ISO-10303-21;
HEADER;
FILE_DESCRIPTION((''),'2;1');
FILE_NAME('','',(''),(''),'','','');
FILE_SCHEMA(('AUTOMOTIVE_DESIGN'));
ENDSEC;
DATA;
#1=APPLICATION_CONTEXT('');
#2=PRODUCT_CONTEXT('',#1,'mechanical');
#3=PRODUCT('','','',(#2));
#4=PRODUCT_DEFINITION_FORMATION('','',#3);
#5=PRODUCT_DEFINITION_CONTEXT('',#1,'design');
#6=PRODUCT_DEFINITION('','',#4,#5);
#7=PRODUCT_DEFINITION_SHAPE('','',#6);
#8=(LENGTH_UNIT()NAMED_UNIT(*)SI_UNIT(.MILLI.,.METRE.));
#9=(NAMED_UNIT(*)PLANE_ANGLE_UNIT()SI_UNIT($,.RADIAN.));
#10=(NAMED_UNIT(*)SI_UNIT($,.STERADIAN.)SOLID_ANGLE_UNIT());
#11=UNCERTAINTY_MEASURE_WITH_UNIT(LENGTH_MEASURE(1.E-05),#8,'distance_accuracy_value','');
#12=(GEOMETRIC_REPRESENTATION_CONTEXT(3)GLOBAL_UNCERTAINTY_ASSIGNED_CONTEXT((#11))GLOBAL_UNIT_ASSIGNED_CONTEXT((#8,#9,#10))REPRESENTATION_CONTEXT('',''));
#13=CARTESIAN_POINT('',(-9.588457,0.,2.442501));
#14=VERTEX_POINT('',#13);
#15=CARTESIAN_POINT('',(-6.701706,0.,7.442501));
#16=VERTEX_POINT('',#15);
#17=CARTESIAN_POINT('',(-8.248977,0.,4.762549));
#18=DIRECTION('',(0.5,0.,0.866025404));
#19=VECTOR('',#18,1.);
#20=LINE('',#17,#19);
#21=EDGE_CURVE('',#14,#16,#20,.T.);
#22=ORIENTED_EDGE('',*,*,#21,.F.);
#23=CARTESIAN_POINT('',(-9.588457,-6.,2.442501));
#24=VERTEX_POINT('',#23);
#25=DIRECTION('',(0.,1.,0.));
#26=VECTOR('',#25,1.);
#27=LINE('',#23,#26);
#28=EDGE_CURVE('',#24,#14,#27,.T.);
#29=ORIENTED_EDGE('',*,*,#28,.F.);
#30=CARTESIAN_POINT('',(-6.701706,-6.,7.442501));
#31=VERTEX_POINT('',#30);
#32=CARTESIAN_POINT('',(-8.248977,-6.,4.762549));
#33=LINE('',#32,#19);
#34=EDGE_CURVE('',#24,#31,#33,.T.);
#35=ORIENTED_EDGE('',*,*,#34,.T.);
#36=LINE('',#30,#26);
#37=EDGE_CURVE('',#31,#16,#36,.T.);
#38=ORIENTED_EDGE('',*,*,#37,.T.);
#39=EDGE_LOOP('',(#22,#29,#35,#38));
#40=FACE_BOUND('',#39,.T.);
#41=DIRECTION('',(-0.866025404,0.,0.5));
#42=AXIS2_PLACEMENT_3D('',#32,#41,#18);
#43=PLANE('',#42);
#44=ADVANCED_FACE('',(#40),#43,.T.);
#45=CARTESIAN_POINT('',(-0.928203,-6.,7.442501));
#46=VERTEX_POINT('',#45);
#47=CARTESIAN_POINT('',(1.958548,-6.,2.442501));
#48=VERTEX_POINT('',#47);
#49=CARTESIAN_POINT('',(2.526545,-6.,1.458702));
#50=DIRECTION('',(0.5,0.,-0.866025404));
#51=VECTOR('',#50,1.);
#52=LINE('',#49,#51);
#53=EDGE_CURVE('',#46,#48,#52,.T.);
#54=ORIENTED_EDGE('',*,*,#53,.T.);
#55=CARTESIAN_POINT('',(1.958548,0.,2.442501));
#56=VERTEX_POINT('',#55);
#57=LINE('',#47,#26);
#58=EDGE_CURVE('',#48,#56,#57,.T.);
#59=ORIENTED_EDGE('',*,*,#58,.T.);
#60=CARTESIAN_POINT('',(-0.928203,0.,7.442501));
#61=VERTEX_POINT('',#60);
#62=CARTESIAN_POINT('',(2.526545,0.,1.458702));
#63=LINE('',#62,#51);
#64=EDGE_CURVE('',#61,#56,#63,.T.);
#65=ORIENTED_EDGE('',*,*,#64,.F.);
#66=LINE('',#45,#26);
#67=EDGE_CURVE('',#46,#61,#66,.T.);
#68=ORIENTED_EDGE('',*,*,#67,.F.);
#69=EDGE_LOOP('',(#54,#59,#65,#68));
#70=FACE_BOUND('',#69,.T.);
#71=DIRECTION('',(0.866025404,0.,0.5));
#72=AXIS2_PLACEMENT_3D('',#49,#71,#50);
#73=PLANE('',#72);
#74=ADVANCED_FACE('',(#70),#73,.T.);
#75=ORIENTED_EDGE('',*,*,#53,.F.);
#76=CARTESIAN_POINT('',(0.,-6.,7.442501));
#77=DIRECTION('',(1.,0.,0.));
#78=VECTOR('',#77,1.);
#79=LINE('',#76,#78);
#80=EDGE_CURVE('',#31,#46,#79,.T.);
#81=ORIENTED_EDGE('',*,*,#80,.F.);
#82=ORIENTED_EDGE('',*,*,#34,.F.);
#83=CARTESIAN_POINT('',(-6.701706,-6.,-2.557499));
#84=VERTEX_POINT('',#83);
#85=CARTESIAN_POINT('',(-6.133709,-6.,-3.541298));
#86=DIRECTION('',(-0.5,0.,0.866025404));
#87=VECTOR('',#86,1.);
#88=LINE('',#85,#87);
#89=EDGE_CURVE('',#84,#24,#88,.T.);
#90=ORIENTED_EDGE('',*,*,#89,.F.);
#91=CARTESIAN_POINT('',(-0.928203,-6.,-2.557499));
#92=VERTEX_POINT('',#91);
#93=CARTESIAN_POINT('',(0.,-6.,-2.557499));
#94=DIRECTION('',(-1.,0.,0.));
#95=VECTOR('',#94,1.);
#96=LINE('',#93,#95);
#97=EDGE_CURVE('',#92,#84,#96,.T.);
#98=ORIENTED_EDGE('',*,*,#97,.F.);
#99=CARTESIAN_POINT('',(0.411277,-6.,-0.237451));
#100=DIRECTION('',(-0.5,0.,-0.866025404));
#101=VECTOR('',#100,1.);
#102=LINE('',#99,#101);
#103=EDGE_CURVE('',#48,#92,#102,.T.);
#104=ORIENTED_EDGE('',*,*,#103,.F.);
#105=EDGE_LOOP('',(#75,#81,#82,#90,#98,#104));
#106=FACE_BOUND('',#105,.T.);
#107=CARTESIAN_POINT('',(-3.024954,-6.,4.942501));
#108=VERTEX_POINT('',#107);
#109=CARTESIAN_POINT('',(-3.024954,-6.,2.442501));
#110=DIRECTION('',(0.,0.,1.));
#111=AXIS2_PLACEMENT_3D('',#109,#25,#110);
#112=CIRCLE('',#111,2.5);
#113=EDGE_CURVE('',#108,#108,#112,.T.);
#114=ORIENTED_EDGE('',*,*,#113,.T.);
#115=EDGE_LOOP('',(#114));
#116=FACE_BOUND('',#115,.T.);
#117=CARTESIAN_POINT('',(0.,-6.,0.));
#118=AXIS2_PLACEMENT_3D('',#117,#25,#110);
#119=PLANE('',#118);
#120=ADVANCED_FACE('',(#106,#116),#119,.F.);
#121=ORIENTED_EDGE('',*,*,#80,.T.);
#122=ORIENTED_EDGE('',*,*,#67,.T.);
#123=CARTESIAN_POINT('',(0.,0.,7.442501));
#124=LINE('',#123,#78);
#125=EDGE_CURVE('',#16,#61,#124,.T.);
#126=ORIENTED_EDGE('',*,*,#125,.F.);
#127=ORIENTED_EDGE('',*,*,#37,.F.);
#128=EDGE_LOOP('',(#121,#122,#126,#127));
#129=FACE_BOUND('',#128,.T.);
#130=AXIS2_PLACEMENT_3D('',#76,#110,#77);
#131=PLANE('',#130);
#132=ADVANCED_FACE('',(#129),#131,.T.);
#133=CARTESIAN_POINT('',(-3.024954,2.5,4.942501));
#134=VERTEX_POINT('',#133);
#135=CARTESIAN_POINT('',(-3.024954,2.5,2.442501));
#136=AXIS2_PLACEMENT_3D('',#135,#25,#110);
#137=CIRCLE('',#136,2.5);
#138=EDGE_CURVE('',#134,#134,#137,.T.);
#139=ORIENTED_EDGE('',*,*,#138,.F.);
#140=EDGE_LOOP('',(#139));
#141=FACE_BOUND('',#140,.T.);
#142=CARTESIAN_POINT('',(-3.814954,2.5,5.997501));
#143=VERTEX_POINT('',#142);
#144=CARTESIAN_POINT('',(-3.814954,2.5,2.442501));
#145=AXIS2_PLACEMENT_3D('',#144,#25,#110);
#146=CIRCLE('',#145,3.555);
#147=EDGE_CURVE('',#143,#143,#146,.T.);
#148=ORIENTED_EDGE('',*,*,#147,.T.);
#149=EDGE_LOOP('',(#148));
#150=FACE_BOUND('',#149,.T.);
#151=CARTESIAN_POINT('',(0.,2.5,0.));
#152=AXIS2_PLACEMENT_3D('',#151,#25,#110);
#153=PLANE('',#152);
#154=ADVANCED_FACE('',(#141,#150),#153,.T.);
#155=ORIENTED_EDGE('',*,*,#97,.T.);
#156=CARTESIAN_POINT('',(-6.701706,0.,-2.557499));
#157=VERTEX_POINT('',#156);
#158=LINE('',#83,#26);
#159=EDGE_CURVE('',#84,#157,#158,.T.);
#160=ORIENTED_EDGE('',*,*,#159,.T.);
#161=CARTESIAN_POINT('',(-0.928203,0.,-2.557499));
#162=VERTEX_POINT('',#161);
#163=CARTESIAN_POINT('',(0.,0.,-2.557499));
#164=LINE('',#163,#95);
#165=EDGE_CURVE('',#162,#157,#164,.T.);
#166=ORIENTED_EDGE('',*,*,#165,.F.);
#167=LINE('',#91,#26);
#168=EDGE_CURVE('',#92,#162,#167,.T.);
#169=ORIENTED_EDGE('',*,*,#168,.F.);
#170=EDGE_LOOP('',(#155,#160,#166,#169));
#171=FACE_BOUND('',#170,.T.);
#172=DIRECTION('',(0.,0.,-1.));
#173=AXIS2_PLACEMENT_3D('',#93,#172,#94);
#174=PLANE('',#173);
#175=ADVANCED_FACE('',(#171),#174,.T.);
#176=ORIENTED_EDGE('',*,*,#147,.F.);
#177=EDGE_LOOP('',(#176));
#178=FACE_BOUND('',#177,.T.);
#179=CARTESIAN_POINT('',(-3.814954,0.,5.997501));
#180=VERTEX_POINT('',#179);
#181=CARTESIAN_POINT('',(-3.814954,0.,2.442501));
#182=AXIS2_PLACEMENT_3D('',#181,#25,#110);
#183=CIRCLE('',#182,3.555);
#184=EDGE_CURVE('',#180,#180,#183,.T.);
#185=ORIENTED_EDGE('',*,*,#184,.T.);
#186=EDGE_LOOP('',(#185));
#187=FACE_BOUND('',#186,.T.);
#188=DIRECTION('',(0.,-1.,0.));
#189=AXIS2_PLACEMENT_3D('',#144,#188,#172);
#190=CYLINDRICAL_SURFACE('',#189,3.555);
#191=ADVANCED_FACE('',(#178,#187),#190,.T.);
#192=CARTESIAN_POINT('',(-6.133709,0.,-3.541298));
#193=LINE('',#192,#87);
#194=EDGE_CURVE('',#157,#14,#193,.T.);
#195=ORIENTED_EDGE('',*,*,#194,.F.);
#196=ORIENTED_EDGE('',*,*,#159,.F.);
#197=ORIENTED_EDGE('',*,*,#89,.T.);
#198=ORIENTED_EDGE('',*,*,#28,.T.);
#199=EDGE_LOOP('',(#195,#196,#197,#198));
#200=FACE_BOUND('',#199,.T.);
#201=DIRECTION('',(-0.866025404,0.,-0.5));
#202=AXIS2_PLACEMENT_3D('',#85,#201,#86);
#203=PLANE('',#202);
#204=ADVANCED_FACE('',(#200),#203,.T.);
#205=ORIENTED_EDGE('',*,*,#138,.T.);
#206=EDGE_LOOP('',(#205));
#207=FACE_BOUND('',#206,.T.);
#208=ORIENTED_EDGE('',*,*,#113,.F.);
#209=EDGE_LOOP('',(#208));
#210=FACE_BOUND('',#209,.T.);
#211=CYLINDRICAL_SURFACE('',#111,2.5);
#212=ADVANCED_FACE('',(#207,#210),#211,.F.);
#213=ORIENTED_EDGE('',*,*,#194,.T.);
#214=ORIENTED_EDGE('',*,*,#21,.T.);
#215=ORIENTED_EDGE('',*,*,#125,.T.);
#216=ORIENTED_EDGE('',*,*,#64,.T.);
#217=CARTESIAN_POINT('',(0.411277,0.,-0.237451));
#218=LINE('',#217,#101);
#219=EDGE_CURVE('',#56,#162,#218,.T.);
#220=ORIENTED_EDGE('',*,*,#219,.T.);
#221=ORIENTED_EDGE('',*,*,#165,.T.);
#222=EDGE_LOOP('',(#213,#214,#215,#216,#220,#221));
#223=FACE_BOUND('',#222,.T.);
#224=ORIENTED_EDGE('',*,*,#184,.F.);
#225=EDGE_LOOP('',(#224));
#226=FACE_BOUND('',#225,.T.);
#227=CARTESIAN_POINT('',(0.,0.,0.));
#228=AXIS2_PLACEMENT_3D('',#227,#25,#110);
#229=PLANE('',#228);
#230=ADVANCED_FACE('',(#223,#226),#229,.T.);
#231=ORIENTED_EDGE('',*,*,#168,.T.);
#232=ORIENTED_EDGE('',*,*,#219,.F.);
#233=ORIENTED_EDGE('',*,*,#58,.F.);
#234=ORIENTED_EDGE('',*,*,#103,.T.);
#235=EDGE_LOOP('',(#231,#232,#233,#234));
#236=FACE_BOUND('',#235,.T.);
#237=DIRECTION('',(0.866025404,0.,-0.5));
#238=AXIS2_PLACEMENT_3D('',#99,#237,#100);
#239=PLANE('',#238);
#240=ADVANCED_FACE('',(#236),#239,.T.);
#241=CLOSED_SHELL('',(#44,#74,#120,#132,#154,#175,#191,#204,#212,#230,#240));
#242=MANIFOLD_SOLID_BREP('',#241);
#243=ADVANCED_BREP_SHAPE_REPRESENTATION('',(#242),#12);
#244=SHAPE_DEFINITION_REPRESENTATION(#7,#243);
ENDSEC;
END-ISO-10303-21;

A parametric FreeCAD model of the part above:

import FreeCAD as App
import Part
import Sketcher

V = App.Vector
Q = App.Units.Quantity


def add_polygon(sketch, points):
    """Adds a closed chain of lines whose ends are joined by coincident constraints."""
    first, n = sketch.GeometryCount, len(points)
    for a, b in zip(points, points[1:] + points[:1]):
        sketch.addGeometry(Part.LineSegment(App.Vector(*a, 0), App.Vector(*b, 0)), False)
    for i in range(n):
        sketch.addConstraint(Sketcher.Constraint("Coincident", first + i, 2, first + (i + 1) % n, 1))

doc = App.newDocument("Part")
body = doc.addObject("PartDesign::Body", "Body")

# Sketch on XZ plane
sketch1 = body.newObject("Sketcher::SketchObject", "Sketch")
sketch1.AttachmentSupport = (doc.getObject("XZ_Plane"), [""])
sketch1.MapMode = "FlatFace"
add_polygon(sketch1, [(-0.9, 7.4), (2, 2.4), (-0.9, -2.6), (-6.7, -2.6), (-9.6, 2.4), (-6.7, 7.4)])  # lines 0-5
sketch1.addGeometry(Part.Circle(V(-3, 2.4, 0), V(0, 0, 1), 2.5), False)  # 6
sketch1.addConstraint(Sketcher.Constraint("Horizontal", 2))
sketch1.addConstraint(Sketcher.Constraint("Horizontal", 5))
sketch1.addConstraint(Sketcher.Constraint("Parallel", 0, 3))
sketch1.addConstraint(Sketcher.Constraint("Parallel", 1, 4))
sketch1.addConstraint(Sketcher.Constraint("Horizontal", 6, 3, 0, 2))
sketch1.addConstraint(Sketcher.Constraint("Horizontal", 0, 2, 3, 2))
sketch1.addConstraint(Sketcher.Constraint("Vertical", 2, 2, 4, 2))
sketch1.addConstraint(Sketcher.Constraint("Vertical", 1, 2, 5, 2))
sketch1.addConstraint(Sketcher.Constraint("Diameter", 6, Q("5 mm")))
sketch1.addConstraint(Sketcher.Constraint("Angle", 0, Q("-60 deg")))
sketch1.addConstraint(Sketcher.Constraint("DistanceY", 1, 2, 6, 3, Q("5 mm")))
sketch1.addConstraint(Sketcher.Constraint("DistanceY", -1, 1, 6, 3, Q("2.442501 mm")))
sketch1.addConstraint(Sketcher.Constraint("DistanceX", 2, 2, 2, 1, Q("5.773503 mm")))
sketch1.addConstraint(Sketcher.Constraint("DistanceX", -1, 1, 0, 2, Q("1.958548 mm")))
sketch1.addConstraint(Sketcher.Constraint("DistanceX", 6, 3, 1, 2, Q("2.096751 mm")))
pad1 = body.newObject("PartDesign::Pad", "Pad")
pad1.Profile = sketch1
pad1.Length = 6

# Sketch on XZ plane
sketch2 = body.newObject("Sketcher::SketchObject", "Sketch001")
sketch2.AttachmentSupport = (doc.getObject("XZ_Plane"), [""])
sketch2.MapMode = "FlatFace"
sketch2.AttachmentOffset = App.Placement(V(0, 0, -2.5), App.Rotation())
sketch2.addGeometry(Part.Circle(V(-3.8, 2.4, 0), V(0, 0, 1), 3.6), False)
sketch2.addGeometry(Part.Circle(V(-3, 2.4, 0), V(0, 0, 1), 2.5), False)
sketch2.addConstraint(Sketcher.Constraint("Horizontal", 0, 3, 1, 3))
sketch2.addConstraint(Sketcher.Constraint("Diameter", 1, Q("5 mm")))
sketch2.addConstraint(Sketcher.Constraint("Diameter", 0, Q("7.11 mm")))
sketch2.addConstraint(Sketcher.Constraint("DistanceX", 0, 3, 1, 3, Q("0.79 mm")))
sketch2.addConstraint(Sketcher.Constraint("DistanceY", -1, 1, 0, 3, Q("2.442501 mm")))
sketch2.addConstraint(Sketcher.Constraint("DistanceX", 0, 3, -1, 1, Q("3.814954 mm")))
pad2 = body.newObject("PartDesign::Pad", "Pad001")
pad2.Profile = sketch2
pad2.Length = 2.5

doc.recompute()
